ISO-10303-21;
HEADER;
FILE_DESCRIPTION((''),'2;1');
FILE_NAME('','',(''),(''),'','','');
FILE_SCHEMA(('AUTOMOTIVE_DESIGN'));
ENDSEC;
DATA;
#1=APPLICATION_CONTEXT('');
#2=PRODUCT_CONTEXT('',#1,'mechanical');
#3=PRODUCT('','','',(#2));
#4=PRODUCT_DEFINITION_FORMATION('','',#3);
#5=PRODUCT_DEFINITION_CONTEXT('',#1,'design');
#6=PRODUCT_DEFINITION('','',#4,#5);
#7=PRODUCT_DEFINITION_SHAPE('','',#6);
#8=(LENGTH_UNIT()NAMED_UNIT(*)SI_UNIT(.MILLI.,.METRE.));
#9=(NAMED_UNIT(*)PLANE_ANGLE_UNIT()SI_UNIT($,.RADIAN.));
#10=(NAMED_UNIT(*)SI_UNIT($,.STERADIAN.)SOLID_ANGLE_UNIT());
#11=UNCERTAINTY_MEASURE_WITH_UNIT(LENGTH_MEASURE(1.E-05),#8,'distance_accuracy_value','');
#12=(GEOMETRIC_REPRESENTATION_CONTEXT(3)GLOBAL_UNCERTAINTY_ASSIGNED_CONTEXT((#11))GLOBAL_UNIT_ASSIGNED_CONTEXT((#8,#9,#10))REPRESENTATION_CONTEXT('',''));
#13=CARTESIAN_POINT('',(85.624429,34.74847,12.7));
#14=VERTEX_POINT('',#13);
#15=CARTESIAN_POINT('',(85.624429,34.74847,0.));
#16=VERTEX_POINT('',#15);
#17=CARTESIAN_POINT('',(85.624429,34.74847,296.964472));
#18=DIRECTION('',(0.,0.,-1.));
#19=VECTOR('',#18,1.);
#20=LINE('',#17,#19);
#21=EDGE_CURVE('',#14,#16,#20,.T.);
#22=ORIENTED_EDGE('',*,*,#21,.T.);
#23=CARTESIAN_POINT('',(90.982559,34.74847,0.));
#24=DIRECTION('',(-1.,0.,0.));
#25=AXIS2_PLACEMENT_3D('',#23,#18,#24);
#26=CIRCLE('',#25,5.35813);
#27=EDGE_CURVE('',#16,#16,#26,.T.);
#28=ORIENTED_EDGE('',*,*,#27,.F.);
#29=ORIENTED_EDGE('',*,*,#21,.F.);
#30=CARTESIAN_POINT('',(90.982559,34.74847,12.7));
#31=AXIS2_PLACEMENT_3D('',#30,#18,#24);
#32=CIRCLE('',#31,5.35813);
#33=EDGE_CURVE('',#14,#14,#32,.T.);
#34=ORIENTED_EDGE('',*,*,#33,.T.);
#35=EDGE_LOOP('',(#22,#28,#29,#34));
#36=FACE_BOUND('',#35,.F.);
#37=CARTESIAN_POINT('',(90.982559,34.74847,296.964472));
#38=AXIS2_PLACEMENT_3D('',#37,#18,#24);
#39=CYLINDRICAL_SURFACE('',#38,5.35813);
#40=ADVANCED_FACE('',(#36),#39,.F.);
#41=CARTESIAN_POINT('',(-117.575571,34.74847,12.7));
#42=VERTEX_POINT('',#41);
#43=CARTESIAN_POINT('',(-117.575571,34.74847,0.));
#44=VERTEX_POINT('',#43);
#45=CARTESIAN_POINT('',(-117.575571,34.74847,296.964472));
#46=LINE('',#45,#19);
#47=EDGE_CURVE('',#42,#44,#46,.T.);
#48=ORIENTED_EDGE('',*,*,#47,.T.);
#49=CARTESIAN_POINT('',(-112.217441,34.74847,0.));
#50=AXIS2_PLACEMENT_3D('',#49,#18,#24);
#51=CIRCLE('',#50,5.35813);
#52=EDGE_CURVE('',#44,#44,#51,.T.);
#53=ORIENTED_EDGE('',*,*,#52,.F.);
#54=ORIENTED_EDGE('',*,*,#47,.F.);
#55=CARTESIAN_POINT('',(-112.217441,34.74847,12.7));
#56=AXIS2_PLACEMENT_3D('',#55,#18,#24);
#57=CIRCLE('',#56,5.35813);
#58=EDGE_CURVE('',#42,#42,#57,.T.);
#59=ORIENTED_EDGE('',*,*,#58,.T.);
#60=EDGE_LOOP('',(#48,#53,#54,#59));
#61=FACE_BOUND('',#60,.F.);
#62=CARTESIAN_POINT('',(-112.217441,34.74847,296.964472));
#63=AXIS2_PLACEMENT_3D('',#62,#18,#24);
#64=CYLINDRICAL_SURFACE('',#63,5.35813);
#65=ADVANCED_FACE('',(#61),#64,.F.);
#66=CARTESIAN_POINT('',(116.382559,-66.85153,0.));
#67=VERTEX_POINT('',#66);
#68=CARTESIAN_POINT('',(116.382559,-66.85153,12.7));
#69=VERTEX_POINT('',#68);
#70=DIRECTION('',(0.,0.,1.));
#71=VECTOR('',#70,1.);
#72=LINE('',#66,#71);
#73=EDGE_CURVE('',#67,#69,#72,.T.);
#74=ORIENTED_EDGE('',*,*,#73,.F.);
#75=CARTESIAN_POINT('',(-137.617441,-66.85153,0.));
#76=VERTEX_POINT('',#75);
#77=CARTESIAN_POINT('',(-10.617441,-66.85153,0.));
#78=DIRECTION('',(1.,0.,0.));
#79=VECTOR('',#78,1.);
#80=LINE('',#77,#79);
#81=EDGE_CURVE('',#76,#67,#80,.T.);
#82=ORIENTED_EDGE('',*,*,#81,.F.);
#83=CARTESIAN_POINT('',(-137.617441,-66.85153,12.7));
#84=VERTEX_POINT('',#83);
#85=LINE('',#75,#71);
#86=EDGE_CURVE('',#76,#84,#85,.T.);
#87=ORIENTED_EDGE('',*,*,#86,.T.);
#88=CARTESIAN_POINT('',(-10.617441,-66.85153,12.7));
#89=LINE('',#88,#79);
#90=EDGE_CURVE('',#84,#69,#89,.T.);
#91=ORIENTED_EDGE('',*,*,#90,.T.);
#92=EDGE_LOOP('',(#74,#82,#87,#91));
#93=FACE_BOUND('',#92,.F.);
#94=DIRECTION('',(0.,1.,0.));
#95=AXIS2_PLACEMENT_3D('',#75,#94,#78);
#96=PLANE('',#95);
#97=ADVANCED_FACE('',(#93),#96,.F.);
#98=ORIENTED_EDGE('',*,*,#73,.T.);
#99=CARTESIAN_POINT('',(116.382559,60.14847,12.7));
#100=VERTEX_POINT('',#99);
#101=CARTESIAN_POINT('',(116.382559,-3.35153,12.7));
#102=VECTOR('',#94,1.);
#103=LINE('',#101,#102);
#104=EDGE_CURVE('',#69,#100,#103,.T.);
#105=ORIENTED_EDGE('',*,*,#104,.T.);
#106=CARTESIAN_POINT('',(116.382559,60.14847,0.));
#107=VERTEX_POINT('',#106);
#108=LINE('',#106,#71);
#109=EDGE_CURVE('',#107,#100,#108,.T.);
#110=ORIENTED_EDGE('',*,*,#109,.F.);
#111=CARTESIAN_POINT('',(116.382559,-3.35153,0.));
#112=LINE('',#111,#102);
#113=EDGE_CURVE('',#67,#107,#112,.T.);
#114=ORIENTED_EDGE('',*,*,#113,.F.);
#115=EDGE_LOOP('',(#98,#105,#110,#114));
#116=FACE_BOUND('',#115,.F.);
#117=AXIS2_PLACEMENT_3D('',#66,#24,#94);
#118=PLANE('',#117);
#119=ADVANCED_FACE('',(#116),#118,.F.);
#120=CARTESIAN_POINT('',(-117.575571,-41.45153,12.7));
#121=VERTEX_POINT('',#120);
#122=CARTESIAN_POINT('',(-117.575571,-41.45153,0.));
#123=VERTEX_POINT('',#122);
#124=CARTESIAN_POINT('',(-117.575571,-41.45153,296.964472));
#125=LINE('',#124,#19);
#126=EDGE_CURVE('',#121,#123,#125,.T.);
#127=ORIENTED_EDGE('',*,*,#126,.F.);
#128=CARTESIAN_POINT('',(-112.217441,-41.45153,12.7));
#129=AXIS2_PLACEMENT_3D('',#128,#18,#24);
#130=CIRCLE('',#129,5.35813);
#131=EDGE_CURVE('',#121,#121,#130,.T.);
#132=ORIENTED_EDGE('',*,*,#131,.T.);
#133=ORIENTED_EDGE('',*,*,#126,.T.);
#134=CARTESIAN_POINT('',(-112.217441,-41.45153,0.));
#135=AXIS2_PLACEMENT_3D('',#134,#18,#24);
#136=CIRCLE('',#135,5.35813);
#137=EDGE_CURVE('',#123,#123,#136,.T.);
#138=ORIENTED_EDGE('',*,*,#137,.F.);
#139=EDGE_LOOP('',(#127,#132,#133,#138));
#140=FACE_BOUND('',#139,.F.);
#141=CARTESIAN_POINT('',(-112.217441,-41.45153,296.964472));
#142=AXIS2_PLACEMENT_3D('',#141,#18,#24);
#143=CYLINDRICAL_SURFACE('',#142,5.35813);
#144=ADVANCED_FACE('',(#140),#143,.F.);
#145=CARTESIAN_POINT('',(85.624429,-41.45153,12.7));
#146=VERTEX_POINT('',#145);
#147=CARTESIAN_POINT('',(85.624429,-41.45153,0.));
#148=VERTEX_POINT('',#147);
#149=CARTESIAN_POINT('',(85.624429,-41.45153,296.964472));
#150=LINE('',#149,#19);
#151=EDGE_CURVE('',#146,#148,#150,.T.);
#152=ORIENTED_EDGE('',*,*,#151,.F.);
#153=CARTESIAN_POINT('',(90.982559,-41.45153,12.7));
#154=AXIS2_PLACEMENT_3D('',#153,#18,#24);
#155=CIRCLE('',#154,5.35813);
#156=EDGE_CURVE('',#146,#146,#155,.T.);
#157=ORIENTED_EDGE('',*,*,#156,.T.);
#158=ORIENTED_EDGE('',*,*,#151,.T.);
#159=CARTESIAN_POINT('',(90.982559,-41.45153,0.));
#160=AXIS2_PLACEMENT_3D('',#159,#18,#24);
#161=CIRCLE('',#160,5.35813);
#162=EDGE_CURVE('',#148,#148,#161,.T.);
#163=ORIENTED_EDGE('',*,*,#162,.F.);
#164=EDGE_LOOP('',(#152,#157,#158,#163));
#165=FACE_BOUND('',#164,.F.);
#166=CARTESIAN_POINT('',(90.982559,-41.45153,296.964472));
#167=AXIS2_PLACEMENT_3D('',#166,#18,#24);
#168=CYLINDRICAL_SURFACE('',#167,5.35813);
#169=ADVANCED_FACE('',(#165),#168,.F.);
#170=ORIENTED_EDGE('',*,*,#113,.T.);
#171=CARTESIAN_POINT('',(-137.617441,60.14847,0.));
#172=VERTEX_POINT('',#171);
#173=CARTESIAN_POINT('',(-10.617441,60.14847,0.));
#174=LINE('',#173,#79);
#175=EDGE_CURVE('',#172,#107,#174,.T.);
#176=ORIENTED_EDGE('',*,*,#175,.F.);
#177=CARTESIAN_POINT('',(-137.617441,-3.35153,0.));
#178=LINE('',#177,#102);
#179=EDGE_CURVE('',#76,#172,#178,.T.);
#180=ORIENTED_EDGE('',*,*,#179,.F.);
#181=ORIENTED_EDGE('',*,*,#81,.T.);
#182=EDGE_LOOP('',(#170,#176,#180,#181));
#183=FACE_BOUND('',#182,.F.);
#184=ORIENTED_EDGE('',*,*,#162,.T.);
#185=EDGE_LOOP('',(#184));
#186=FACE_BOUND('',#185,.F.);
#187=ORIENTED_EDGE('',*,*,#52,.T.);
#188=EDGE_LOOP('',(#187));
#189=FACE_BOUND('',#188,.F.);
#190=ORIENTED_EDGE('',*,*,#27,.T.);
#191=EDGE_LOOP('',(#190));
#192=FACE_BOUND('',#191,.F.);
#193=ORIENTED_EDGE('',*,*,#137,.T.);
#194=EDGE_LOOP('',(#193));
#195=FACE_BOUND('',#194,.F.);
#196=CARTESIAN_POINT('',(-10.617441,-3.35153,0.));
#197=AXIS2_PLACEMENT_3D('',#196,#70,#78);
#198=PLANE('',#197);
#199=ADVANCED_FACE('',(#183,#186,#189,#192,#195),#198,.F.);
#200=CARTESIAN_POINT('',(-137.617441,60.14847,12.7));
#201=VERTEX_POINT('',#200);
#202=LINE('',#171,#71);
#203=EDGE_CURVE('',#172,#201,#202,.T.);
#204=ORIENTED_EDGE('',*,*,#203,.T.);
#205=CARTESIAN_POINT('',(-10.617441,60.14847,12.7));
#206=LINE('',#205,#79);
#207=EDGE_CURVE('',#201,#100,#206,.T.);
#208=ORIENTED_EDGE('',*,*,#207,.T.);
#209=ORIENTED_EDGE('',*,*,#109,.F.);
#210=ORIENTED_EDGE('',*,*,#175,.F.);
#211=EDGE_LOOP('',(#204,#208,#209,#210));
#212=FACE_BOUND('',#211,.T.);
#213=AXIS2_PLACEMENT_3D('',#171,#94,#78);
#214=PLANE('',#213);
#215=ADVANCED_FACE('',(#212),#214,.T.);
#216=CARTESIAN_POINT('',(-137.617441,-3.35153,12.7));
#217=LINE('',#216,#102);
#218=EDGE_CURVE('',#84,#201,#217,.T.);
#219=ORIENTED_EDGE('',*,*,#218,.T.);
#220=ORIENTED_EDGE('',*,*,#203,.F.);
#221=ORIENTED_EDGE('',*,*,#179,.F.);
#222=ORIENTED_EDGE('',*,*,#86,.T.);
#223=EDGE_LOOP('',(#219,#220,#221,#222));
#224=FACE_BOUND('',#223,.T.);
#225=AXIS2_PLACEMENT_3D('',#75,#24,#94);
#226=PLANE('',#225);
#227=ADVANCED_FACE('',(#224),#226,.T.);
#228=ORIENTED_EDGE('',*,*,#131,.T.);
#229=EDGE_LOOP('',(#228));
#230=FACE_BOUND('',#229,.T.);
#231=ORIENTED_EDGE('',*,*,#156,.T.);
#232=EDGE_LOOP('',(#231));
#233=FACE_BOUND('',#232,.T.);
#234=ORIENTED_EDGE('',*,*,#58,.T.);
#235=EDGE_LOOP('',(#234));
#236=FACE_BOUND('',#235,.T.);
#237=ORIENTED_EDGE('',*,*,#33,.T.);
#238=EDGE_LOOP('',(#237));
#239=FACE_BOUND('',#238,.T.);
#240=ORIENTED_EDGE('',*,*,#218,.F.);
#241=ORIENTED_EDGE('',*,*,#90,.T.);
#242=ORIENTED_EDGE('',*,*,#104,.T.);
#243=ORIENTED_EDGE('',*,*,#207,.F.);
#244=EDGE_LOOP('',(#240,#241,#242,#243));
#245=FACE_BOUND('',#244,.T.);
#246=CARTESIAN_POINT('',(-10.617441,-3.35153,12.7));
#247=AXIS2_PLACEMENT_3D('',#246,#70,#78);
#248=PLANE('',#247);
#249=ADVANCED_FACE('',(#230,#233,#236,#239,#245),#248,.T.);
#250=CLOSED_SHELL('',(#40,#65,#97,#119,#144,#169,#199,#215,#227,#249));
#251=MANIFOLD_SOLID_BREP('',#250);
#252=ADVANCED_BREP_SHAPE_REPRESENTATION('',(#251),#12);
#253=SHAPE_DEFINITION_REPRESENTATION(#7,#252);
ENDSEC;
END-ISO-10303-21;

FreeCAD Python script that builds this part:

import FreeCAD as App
import Part
import Sketcher

V = App.Vector
Q = App.Units.Quantity

doc = App.newDocument("Part")
body = doc.addObject("PartDesign::Body", "Body")

# Sketch on XY plane
sketch1 = doc.addObject("Sketcher::SketchObject", "Sketch")
body.addObject(sketch1)
sketch1.AttachmentSupport = (doc.XY_Plane, [""])
sketch1.MapMode = "FlatFace"
sketch1.addGeometry(Part.LineSegment(V(-138, 60, 0), V(-138, -67, 0)), False)
sketch1.addGeometry(Part.LineSegment(V(-138, -67, 0), V(116, -67, 0)), False)
sketch1.addGeometry(Part.LineSegment(V(116, -67, 0), V(116, 60, 0)), False)
sketch1.addGeometry(Part.LineSegment(V(116, 60, 0), V(-138, 60, 0)), False)
sketch1.addConstraint(Sketcher.Constraint("Coincident", 0, 2, 1, 1))
sketch1.addConstraint(Sketcher.Constraint("Coincident", 1, 2, 2, 1))
sketch1.addConstraint(Sketcher.Constraint("Coincident", 2, 2, 3, 1))
sketch1.addConstraint(Sketcher.Constraint("Coincident", 3, 2, 0, 1))
sketch1.addConstraint(Sketcher.Constraint("Vertical", 0))
sketch1.addConstraint(Sketcher.Constraint("Horizontal", 1))
sketch1.addConstraint(Sketcher.Constraint("Vertical", 2))
sketch1.addConstraint(Sketcher.Constraint("Horizontal", 3))
sketch1.addConstraint(Sketcher.Constraint("DistanceX", 1, 1, 1, 2, Q("10 in")))
sketch1.addConstraint(Sketcher.Constraint("DistanceY", 0, 2, 0, 1, Q("5 in")))
sketch1.addConstraint(Sketcher.Constraint("DistanceX", 0, 2, -1, 1, Q("137.617441 mm")))
sketch1.addConstraint(Sketcher.Constraint("DistanceY", 0, 2, -1, 1, Q("66.85153 mm")))
pad1 = doc.addObject("PartDesign::Pad", "Pad")
body.addObject(pad1)
pad1.Profile = sketch1
pad1.Length = Q("0.5 in")

# Sketch on XY plane
sketch2 = doc.addObject("Sketcher::SketchObject", "Sketch001")
body.addObject(sketch2)
sketch2.AttachmentSupport = (doc.XY_Plane, [""])
sketch2.MapMode = "FlatFace"
sketch2.AttachmentOffset = App.Placement(V(0, 0, 0.5 * 25.4), App.Rotation())
sketch2.addGeometry(Part.Circle(V(-112, 35, 0), V(0, 0, 1), 5), False)
sketch2.addGeometry(Part.Circle(V(-112, -41, 0), V(0, 0, 1), 5), False)
sketch2.addGeometry(Part.Circle(V(91, 35, 0), V(0, 0, 1), 5), False)
sketch2.addGeometry(Part.Circle(V(91, -41, 0), V(0, 0, 1), 5), False)
sketch2.addConstraint(Sketcher.Constraint("Equal", 0, 1))
sketch2.addConstraint(Sketcher.Constraint("Equal", 1, 2))
sketch2.addConstraint(Sketcher.Constraint("Equal", 2, 3))
sketch2.addConstraint(Sketcher.Constraint("Horizontal", 0, 3, 2, 3))
sketch2.addConstraint(Sketcher.Constraint("Horizontal", 1, 3, 3, 3))
sketch2.addConstraint(Sketcher.Constraint("Vertical", 0, 3, 1, 3))
sketch2.addConstraint(Sketcher.Constraint("Vertical", 2, 3, 3, 3))
sketch2.addConstraint(Sketcher.Constraint("DistanceY", 1, 3, 0, 3, Q("3 in")))
sketch2.addConstraint(Sketcher.Constraint("DistanceX", 0, 3, 2, 3, Q("8 in")))
sketch2.addConstraint(Sketcher.Constraint("Diameter", 0, Q("0.4219 in")))
sketch2.addConstraint(Sketcher.Constraint("DistanceX", 0, 3, -1, 1, Q("112.217441 mm")))
sketch2.addConstraint(Sketcher.Constraint("DistanceY", -1, 1, 0, 3, Q("34.74847 mm")))
doc.recompute()
hole = doc.addObject("PartDesign::Hole", "Hole")
body.addObject(hole)
hole.Profile = sketch2
hole.ThreadType = "None"
hole.Diameter = Q("0.4219 in")
hole.DepthType = "ThroughAll"

doc.recompute()
